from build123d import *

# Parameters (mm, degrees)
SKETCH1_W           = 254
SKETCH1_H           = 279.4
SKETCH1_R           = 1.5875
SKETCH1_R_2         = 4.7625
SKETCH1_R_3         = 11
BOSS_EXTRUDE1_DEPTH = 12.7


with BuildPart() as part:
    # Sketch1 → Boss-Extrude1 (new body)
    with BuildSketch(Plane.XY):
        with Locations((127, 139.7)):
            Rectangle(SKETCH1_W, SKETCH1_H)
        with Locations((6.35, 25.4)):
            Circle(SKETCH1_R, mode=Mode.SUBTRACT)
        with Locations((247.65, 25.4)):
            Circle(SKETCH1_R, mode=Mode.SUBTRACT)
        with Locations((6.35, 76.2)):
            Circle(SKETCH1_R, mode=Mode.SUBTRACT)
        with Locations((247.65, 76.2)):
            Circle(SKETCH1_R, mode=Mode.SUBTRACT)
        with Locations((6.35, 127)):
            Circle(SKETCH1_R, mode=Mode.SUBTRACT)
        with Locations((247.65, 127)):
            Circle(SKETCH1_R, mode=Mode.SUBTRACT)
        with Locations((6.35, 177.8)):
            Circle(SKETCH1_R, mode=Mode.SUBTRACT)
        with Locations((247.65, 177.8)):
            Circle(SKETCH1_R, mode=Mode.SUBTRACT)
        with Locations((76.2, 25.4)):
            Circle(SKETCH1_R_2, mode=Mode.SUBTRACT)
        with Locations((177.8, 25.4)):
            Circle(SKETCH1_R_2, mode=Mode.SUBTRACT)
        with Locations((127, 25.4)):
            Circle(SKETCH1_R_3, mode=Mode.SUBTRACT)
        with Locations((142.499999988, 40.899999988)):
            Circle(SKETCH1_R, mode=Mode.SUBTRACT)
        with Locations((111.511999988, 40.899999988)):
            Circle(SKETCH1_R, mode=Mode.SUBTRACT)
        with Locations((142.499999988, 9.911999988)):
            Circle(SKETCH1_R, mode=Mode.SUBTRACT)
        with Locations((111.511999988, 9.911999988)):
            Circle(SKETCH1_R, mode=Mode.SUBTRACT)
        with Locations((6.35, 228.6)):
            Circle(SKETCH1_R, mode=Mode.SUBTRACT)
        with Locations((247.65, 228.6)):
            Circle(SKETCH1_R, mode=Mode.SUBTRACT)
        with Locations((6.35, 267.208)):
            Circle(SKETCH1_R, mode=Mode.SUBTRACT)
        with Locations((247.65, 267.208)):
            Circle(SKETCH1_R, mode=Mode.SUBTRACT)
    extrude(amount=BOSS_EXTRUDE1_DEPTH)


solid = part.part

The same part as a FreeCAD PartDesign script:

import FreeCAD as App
import Part
import Sketcher
Q = App.Units.Quantity


def add_polygon(sketch, points):
    """Adds a closed chain of lines whose ends are joined by coincident constraints."""
    first, n = sketch.GeometryCount, len(points)
    for a, b in zip(points, points[1:] + points[:1]):
        sketch.addGeometry(Part.LineSegment(App.Vector(*a, 0), App.Vector(*b, 0)), False)
    for i in range(n):
        sketch.addConstraint(Sketcher.Constraint("Coincident", first + i, 2, first + (i + 1) % n, 1))

doc = App.newDocument("Part")
params = doc.addObject("Spreadsheet::Sheet", "Params")
for row, (alias, value) in enumerate([
    ("sketch1_width", "10 in"),
    ("sketch1_height", "11 in"),
    ("sketch1_diameter", "0.125 in"),
    ("sketch1_diameter2", "0.375 in"),
    ("pad1_length", "0.5 in"),
], start=1):
    params.set(f"A{row}", alias)
    params.set(f"B{row}", "=" + value)
    params.setAlias(f"B{row}", alias)

body = doc.addObject("PartDesign::Body", "Body")

# Sketch on XY plane
sketch1 = body.newObject("Sketcher::SketchObject", "Sketch")
sketch1.AttachmentSupport = (doc.getObject("XY_Plane"), [""])
sketch1.MapMode = "FlatFace"
add_polygon(sketch1, [(0, 279.4), (0, 0), (254, 0), (254, 279.4)])  # lines 0-3
sketch1.addGeometry(Part.Circle(App.Vector(6.3, 25.4, 0), App.Vector(0, 0, 1), 1.6), False)  # 4
sketch1.addGeometry(Part.Circle(App.Vector(76.2, 25.4, 0), App.Vector(0, 0, 1), 4.8), False)  # 5
sketch1.addGeometry(Part.Circle(App.Vector(111.5, 9.9, 0), App.Vector(0, 0, 1), 1.6), False)  # 6
sketch1.addGeometry(Part.Circle(App.Vector(127, 25.4, 0), App.Vector(0, 0, 1), 11), False)  # 7
sketch1.addGeometry(Part.Circle(App.Vector(111.5, 40.9, 0), App.Vector(0, 0, 1), 1.6), False)  # 8
sketch1.addGeometry(Part.Circle(App.Vector(6.3, 76.2, 0), App.Vector(0, 0, 1), 1.6), False)  # 9
sketch1.addGeometry(Part.Circle(App.Vector(6.3, 127, 0), App.Vector(0, 0, 1), 1.6), False)  # 10
sketch1.addGeometry(Part.Circle(App.Vector(142.5, 9.9, 0), App.Vector(0, 0, 1), 1.6), False)  # 11
sketch1.addGeometry(Part.Circle(App.Vector(177.8, 25.4, 0), App.Vector(0, 0, 1), 4.8), False)  # 12
sketch1.addGeometry(Part.Circle(App.Vector(142.5, 40.9, 0), App.Vector(0, 0, 1), 1.6), False)  # 13
sketch1.addGeometry(Part.Circle(App.Vector(247.7, 25.4, 0), App.Vector(0, 0, 1), 1.6), False)  # 14
sketch1.addGeometry(Part.Circle(App.Vector(247.7, 76.2, 0), App.Vector(0, 0, 1), 1.6), False)  # 15
sketch1.addGeometry(Part.Circle(App.Vector(247.7, 127, 0), App.Vector(0, 0, 1), 1.6), False)  # 16
sketch1.addGeometry(Part.Circle(App.Vector(6.3, 177.8, 0), App.Vector(0, 0, 1), 1.6), False)  # 17
sketch1.addGeometry(Part.Circle(App.Vector(6.3, 228.6, 0), App.Vector(0, 0, 1), 1.6), False)  # 18
sketch1.addGeometry(Part.Circle(App.Vector(6.3, 267.2, 0), App.Vector(0, 0, 1), 1.6), False)  # 19
sketch1.addGeometry(Part.Circle(App.Vector(247.7, 177.8, 0), App.Vector(0, 0, 1), 1.6), False)  # 20
sketch1.addGeometry(Part.Circle(App.Vector(247.7, 228.6, 0), App.Vector(0, 0, 1), 1.6), False)  # 21
sketch1.addGeometry(Part.Circle(App.Vector(247.7, 267.2, 0), App.Vector(0, 0, 1), 1.6), False)  # 22
sketch1.addConstraint([
    Sketcher.Constraint("Vertical", 0),
    Sketcher.Constraint("Horizontal", 1),
    Sketcher.Constraint("Vertical", 2),
    Sketcher.Constraint("Horizontal", 3),
    Sketcher.Constraint("Coincident", 0, 2, -1, 1),
    Sketcher.Constraint("Equal", 4, 6),
    Sketcher.Constraint("Equal", 6, 8),
    Sketcher.Constraint("Equal", 8, 9),
    Sketcher.Constraint("Equal", 9, 10),
    Sketcher.Constraint("Equal", 10, 11),
    Sketcher.Constraint("Equal", 5, 12),
    Sketcher.Constraint("Equal", 11, 13),
    Sketcher.Constraint("Equal", 13, 14),
    Sketcher.Constraint("Equal", 14, 15),
    Sketcher.Constraint("Equal", 15, 16),
    Sketcher.Constraint("Equal", 16, 17),
    Sketcher.Constraint("Equal", 17, 18),
    Sketcher.Constraint("Equal", 18, 19),
    Sketcher.Constraint("Equal", 19, 20),
    Sketcher.Constraint("Equal", 20, 21),
    Sketcher.Constraint("Equal", 21, 22),
    Sketcher.Constraint("Horizontal", 4, 3, 5, 3),
    Sketcher.Constraint("Horizontal", 5, 3, 7, 3),
    Sketcher.Constraint("Horizontal", 6, 3, 11, 3),
    Sketcher.Constraint("Horizontal", 7, 3, 12, 3),
    Sketcher.Constraint("Horizontal", 8, 3, 13, 3),
    Sketcher.Constraint("Horizontal", 12, 3, 14, 3),
    Sketcher.Constraint("Horizontal", 9, 3, 15, 3),
    Sketcher.Constraint("Horizontal", 10, 3, 16, 3),
    Sketcher.Constraint("Horizontal", 17, 3, 20, 3),
    Sketcher.Constraint("Horizontal", 18, 3, 21, 3),
    Sketcher.Constraint("Horizontal", 19, 3, 22, 3),
    Sketcher.Constraint("Vertical", 6, 3, 8, 3),
    Sketcher.Constraint("Vertical", 4, 3, 9, 3),
    Sketcher.Constraint("Vertical", 9, 3, 10, 3),
    Sketcher.Constraint("Vertical", 11, 3, 13, 3),
    Sketcher.Constraint("Vertical", 14, 3, 15, 3),
    Sketcher.Constraint("Vertical", 15, 3, 16, 3),
    Sketcher.Constraint("Vertical", 10, 3, 17, 3),
    Sketcher.Constraint("Vertical", 17, 3, 18, 3),
    Sketcher.Constraint("Vertical", 18, 3, 19, 3),
    Sketcher.Constraint("Vertical", 16, 3, 20, 3),
    Sketcher.Constraint("Vertical", 20, 3, 21, 3),
    Sketcher.Constraint("Vertical", 21, 3, 22, 3),
    Sketcher.Constraint("DistanceX", 1, 1, 1, 2, Q("10 in")),
    Sketcher.Constraint("DistanceY", 0, 2, 0, 1, Q("11 in")),
    Sketcher.Constraint("Diameter", 4, Q("0.125 in")),
    Sketcher.Constraint("Diameter", 5, Q("0.375 in")),
    Sketcher.Constraint("DistanceY", -1, 1, 4, 3, Q("1 in")),
    Sketcher.Constraint("DistanceX", -1, 1, 5, 3, Q("3 in")),
    Sketcher.Constraint("DistanceX", -1, 1, 7, 3, Q("5 in")),
    Sketcher.Constraint("DistanceY", -1, 1, 9, 3, Q("3 in")),
    Sketcher.Constraint("DistanceY", -1, 1, 10, 3, Q("5 in")),
    Sketcher.Constraint("DistanceX", -1, 1, 12, 3, Q("7 in")),
    Sketcher.Constraint("DistanceY", -1, 1, 17, 3, Q("7 in")),
    Sketcher.Constraint("DistanceY", -1, 1, 18, 3, Q("9 in")),
    Sketcher.Constraint("DistanceX", 19, 3, 22, 3, Q("9.5 in")),
    Sketcher.Constraint("Diameter", 7, 22.0),
    Sketcher.Constraint("DistanceX", -1, 1, 4, 3, Q("0.25 in")),
    Sketcher.Constraint("DistanceY", -1, 1, 19, 3, Q("10.52 in")),
    Sketcher.Constraint("DistanceY", 6, 3, 8, 3, Q("1.22 in")),
    Sketcher.Constraint("DistanceX", 6, 3, 11, 3, Q("1.22 in")),
    Sketcher.Constraint("DistanceX", -1, 1, 6, 3, 111.512),
    Sketcher.Constraint("DistanceY", -1, 1, 6, 3, 9.912),
])
sketch1.setExpression("Constraints[48]", "Params.sketch1_width")
sketch1.setExpression("Constraints[49]", "Params.sketch1_height")
sketch1.setExpression("Constraints[50]", "Params.sketch1_diameter")
sketch1.setExpression("Constraints[51]", "Params.sketch1_diameter2")
pad1 = body.newObject("PartDesign::Pad", "Pad")
pad1.Profile = sketch1
pad1.setExpression("Length", "Params.pad1_length")

doc.recompute()
